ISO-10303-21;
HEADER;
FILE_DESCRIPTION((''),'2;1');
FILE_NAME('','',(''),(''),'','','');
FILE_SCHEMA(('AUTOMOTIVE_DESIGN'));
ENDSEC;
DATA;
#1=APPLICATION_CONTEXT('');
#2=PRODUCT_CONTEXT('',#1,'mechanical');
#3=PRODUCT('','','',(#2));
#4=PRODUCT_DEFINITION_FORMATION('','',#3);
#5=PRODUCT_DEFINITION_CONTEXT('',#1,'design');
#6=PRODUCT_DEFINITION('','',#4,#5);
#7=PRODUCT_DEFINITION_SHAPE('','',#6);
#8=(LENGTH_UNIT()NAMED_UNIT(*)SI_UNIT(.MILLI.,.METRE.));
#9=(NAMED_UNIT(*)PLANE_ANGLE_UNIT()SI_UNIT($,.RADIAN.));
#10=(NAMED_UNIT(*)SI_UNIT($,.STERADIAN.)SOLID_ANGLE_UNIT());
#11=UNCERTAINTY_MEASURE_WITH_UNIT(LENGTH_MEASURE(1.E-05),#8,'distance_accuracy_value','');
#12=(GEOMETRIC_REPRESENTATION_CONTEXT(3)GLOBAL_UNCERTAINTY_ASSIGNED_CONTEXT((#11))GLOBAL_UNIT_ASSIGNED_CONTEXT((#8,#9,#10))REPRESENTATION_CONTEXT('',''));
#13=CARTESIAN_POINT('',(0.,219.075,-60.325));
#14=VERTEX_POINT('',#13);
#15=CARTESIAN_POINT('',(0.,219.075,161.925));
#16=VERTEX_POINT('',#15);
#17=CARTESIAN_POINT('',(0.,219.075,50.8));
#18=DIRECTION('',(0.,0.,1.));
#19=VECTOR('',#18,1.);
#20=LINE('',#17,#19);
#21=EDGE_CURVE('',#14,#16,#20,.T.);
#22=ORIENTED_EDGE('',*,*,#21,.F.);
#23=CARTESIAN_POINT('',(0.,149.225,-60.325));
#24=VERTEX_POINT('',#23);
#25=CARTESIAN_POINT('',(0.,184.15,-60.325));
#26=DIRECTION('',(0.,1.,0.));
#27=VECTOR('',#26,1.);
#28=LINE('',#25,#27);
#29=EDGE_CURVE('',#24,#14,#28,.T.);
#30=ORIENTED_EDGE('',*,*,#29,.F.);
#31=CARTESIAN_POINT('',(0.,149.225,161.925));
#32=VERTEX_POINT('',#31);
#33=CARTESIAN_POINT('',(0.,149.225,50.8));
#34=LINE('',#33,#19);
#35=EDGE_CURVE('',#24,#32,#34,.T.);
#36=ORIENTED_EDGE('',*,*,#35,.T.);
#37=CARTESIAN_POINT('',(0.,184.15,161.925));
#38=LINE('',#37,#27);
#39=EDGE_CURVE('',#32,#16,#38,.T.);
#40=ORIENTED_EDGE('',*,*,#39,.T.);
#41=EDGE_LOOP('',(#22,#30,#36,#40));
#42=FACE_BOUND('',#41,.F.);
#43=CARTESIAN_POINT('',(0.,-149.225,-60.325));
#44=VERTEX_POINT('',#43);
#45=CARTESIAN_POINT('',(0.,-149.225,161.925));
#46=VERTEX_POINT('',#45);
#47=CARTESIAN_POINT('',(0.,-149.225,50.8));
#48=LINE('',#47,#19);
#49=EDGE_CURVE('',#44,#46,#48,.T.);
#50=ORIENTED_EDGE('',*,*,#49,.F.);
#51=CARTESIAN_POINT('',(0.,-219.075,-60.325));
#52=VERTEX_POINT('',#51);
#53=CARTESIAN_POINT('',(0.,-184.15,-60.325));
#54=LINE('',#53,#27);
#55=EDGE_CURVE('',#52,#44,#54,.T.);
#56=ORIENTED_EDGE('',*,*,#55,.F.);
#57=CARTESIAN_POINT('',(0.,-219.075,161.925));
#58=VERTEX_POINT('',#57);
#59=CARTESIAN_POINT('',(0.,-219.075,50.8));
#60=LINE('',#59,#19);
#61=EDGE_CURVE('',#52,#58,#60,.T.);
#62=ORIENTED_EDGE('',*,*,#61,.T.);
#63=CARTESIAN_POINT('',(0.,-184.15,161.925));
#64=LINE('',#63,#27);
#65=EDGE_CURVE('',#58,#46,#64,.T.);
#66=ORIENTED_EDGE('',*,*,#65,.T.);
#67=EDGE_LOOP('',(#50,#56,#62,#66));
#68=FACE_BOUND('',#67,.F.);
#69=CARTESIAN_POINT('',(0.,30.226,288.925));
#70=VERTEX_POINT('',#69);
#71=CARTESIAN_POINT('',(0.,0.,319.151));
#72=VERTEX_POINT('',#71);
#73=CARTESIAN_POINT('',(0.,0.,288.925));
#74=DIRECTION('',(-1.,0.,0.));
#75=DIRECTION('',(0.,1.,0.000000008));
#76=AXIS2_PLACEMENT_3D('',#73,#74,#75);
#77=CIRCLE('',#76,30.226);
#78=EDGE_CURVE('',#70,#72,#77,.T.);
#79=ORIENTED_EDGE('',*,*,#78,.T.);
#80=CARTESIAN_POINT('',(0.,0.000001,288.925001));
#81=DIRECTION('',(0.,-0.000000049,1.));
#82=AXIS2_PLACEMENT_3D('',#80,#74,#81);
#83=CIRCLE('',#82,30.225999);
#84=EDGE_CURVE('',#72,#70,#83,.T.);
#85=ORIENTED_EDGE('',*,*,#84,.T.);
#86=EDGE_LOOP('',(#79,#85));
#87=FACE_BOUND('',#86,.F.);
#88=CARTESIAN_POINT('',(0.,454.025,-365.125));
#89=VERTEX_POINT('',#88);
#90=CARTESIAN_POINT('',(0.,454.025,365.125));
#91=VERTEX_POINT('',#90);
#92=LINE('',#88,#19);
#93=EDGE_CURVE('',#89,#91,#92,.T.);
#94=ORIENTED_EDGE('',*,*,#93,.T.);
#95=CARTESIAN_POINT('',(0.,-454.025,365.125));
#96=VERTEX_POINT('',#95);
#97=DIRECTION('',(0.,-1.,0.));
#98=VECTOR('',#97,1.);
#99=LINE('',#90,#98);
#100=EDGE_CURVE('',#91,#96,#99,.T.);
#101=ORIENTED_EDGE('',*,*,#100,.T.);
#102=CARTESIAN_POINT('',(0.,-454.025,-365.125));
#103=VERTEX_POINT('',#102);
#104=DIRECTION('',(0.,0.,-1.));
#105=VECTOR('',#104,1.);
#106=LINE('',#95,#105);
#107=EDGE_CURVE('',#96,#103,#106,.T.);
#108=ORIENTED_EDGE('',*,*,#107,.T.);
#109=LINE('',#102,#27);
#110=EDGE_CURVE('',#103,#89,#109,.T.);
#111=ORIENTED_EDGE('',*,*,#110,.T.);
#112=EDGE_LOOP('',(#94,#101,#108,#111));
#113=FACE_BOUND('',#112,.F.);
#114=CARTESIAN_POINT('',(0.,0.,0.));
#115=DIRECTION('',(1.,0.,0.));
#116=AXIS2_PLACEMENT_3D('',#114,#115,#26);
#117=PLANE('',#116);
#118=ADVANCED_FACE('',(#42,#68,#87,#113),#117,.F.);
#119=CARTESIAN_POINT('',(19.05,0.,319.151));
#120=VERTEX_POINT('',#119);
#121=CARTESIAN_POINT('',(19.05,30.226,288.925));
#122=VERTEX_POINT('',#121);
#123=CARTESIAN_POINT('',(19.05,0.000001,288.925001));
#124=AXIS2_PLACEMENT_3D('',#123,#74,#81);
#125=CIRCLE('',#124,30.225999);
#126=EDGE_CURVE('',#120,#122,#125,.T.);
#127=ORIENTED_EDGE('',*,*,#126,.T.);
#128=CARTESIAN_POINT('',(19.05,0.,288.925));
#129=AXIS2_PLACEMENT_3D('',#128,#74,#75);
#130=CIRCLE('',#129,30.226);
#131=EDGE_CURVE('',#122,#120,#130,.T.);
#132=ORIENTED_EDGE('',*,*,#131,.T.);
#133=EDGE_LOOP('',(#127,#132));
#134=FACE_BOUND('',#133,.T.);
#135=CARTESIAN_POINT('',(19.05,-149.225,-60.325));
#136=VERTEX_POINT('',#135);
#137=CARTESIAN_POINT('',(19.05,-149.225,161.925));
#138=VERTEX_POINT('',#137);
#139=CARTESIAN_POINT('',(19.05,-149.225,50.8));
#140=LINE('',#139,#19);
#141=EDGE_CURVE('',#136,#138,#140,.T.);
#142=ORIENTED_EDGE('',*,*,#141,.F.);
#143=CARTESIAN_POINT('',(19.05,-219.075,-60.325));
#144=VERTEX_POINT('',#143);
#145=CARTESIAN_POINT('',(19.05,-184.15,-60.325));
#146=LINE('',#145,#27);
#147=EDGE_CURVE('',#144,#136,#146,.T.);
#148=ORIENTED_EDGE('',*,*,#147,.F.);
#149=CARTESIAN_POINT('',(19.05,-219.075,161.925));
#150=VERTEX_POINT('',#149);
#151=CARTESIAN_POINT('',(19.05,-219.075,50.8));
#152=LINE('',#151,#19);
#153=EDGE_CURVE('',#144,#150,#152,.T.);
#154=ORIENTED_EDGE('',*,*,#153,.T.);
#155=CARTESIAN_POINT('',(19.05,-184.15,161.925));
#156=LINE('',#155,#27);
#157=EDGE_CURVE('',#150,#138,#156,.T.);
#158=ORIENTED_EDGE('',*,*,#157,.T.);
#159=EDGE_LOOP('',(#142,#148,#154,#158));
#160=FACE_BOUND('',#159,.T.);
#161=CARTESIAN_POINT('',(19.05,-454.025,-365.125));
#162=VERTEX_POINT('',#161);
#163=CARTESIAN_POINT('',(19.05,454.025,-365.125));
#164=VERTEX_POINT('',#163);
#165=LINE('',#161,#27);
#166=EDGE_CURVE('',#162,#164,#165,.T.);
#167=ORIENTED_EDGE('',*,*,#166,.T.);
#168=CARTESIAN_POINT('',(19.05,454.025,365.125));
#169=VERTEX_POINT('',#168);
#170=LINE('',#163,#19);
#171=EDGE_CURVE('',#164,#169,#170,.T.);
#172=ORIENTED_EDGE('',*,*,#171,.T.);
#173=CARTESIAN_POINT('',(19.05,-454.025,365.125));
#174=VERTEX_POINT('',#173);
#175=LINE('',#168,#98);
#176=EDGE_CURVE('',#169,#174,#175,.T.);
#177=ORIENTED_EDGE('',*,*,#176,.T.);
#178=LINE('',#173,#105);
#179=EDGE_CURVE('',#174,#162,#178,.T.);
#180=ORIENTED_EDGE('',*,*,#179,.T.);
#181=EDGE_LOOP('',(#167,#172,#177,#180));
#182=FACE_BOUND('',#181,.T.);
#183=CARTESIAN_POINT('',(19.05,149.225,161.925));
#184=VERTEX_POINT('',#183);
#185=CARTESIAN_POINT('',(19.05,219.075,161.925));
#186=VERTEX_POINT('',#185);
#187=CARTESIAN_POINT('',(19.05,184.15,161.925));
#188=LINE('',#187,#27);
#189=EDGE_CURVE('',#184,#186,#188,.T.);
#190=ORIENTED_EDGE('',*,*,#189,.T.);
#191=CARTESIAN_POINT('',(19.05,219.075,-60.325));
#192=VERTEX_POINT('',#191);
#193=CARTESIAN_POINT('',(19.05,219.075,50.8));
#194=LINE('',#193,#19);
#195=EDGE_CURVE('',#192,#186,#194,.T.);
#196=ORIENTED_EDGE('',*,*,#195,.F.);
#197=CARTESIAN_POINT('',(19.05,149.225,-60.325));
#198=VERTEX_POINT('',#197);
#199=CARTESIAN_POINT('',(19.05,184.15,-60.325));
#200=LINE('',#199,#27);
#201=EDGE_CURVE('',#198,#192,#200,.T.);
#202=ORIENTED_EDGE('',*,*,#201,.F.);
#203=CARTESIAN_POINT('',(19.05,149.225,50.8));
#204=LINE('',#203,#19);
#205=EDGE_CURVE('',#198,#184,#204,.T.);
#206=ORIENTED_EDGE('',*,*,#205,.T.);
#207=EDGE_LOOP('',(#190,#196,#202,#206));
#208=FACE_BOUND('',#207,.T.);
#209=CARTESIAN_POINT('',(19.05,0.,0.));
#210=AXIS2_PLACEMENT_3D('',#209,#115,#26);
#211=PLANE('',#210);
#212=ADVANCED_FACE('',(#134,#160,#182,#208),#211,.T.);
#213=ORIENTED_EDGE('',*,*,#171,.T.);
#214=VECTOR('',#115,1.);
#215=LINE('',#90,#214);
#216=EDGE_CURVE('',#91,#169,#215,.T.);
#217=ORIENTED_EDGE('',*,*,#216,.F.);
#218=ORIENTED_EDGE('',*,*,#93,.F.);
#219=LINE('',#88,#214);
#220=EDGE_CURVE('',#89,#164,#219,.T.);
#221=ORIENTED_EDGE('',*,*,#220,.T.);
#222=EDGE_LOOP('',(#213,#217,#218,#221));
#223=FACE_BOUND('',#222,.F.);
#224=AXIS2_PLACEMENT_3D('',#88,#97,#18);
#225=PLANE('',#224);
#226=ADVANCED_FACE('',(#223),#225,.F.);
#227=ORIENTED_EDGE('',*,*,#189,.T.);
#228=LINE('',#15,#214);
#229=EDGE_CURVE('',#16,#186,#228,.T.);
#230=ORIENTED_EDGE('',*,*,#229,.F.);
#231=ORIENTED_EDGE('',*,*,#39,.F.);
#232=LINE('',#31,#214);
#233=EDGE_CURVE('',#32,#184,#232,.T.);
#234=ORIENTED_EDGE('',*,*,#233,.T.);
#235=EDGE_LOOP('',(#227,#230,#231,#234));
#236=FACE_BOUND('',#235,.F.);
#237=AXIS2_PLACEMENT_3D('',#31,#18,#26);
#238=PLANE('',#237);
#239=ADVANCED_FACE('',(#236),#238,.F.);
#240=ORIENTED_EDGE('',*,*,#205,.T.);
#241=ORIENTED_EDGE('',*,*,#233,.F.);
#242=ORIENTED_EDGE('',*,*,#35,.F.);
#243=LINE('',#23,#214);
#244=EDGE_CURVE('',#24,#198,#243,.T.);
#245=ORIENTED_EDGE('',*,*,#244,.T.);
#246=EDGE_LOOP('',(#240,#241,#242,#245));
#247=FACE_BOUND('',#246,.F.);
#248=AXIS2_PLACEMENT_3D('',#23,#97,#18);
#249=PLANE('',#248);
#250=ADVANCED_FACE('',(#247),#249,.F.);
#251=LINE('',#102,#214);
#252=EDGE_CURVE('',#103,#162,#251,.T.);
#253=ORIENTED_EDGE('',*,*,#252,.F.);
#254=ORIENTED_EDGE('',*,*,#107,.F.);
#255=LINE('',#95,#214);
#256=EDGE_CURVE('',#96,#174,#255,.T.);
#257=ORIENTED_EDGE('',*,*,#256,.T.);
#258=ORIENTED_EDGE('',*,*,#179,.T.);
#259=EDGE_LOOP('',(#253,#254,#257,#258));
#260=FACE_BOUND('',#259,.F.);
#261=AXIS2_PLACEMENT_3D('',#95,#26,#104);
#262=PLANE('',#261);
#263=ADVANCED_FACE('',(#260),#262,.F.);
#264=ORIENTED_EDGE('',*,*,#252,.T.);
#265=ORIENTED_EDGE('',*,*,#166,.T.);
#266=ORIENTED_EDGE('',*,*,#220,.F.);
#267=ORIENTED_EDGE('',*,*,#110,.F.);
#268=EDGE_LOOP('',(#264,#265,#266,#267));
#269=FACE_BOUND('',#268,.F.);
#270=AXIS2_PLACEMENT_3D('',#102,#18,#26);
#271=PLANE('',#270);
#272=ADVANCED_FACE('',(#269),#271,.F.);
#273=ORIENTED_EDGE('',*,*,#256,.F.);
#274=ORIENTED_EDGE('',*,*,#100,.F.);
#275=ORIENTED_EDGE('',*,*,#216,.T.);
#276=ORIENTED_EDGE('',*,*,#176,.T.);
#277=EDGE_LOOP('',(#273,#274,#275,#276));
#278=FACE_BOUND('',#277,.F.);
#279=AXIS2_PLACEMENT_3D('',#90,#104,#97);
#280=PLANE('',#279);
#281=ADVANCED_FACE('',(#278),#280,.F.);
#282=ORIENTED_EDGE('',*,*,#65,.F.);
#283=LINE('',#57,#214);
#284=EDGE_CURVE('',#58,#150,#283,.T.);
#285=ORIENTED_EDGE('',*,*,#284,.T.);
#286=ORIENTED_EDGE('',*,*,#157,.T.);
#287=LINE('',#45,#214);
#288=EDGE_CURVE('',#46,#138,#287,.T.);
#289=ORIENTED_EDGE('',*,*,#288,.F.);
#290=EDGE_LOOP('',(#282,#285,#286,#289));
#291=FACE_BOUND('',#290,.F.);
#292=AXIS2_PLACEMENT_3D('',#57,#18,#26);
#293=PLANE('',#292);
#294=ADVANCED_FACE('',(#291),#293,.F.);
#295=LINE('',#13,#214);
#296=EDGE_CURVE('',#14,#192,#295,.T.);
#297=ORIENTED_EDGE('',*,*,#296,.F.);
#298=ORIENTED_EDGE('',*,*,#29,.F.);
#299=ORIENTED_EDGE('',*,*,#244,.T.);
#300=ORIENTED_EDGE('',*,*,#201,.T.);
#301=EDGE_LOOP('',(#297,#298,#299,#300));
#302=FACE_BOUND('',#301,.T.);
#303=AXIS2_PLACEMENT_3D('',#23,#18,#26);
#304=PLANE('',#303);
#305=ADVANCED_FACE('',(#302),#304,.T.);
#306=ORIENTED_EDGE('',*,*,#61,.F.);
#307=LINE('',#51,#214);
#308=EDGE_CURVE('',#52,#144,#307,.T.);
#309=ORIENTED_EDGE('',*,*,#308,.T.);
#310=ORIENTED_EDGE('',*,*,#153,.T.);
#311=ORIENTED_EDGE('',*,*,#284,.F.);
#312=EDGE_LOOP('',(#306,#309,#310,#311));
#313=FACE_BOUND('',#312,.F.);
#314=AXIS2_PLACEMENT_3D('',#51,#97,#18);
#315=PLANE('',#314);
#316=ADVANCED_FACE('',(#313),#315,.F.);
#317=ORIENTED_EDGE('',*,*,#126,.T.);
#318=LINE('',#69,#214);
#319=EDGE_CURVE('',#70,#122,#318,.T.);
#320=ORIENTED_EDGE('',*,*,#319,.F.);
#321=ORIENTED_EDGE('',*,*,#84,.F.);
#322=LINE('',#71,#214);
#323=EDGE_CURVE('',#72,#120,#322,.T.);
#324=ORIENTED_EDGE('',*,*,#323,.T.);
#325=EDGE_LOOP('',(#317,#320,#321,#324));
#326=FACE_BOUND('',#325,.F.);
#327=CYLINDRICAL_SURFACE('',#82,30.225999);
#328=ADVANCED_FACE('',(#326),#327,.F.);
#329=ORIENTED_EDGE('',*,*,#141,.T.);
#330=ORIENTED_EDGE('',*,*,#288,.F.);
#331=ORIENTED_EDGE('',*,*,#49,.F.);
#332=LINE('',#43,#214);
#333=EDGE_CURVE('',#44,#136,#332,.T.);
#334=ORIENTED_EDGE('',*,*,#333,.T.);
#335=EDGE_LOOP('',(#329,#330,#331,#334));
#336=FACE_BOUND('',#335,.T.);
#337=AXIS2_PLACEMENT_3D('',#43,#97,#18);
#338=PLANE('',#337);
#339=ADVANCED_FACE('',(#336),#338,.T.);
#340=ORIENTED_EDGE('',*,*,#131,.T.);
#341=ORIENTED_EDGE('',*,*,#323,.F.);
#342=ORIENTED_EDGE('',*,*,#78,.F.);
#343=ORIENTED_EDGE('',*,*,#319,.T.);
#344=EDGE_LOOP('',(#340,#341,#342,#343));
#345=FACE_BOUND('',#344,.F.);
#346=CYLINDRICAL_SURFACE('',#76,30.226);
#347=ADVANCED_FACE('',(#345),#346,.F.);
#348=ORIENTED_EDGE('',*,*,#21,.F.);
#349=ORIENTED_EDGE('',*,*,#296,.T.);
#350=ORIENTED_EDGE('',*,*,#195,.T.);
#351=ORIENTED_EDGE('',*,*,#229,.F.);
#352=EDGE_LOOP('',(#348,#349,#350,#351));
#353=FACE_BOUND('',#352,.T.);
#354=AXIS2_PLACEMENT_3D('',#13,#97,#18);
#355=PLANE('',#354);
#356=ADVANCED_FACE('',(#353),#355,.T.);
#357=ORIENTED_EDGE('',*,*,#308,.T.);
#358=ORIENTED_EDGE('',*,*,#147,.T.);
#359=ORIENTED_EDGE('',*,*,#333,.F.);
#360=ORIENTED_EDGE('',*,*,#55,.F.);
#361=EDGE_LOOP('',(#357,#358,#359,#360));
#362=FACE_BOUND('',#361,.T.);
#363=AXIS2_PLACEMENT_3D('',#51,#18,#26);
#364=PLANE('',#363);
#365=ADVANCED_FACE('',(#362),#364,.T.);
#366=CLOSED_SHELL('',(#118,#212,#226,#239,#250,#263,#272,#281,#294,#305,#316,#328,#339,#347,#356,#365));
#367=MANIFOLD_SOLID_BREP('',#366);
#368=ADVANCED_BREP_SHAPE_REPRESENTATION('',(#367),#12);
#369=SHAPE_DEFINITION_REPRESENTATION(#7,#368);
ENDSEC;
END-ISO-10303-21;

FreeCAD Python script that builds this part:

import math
import FreeCAD as App
import Part
import Sketcher
Q = App.Units.Quantity

doc = App.newDocument("Part")
params = doc.addObject("Spreadsheet::Sheet", "Params")
for row, (alias, value) in enumerate([
    ("sketch1_radius", "1.1899999 in"),
    ("sketch1_width", "35.75 in"),
    ("sketch1_width2", "2.75 in"),
    ("sketch1_height", "28.75 in"),
    ("pad1_length", "0.75 in"),
], start=1):
    params.set(f"A{row}", alias)
    params.set(f"B{row}", "=" + value)
    params.setAlias(f"B{row}", alias)

body = doc.addObject("PartDesign::Body", "Body")

sketch1 = body.newObject("Sketcher::SketchObject", "Sketch")
sketch1.AttachmentSupport = (doc.getObject("YZ_Plane"), [""])
sketch1.MapMode = "FlatFace"
sketch1.addGeometry(Part.LineSegment(App.Vector(-454.025, 365.125, 0), App.Vector(-454.025, -365.125, 0)), False)
sketch1.addGeometry(Part.LineSegment(App.Vector(-454.025, -365.125, 0), App.Vector(454.025, -365.125, 0)), False)
sketch1.addGeometry(Part.LineSegment(App.Vector(454.025, -365.125, 0), App.Vector(454.025, 365.125, 0)), False)
sketch1.addGeometry(Part.LineSegment(App.Vector(454.025, 365.125, 0), App.Vector(-454.025, 365.125, 0)), False)
sketch1.addGeometry(Part.LineSegment(App.Vector(-149.225, -60.325, 0), App.Vector(-219.075, -60.325, 0)), False)
sketch1.addGeometry(Part.LineSegment(App.Vector(-219.075, -60.325, 0), App.Vector(-219.075, 161.925, 0)), False)
sketch1.addGeometry(Part.LineSegment(App.Vector(-219.075, 161.925, 0), App.Vector(-149.225, 161.925, 0)), False)
sketch1.addGeometry(Part.LineSegment(App.Vector(-149.225, 161.925, 0), App.Vector(-149.225, -60.325, 0)), False)
sketch1.addGeometry(Part.LineSegment(App.Vector(219.075, -60.325, 0), App.Vector(149.225, -60.325, 0)), False)
sketch1.addGeometry(Part.LineSegment(App.Vector(149.225, -60.325, 0), App.Vector(149.225, 161.925, 0)), False)
sketch1.addGeometry(Part.LineSegment(App.Vector(149.225, 161.925, 0), App.Vector(219.075, 161.925, 0)), False)
sketch1.addGeometry(Part.LineSegment(App.Vector(219.075, 161.925, 0), App.Vector(219.075, -60.325, 0)), False)
sketch1.addGeometry(Part.ArcOfCircle(Part.Circle(App.Vector(0.000001, 288.925001, 0), App.Vector(0, 0, 1), 30.225999), math.radians(-0.000003), math.radians(90.000003)), False)
sketch1.addGeometry(Part.ArcOfCircle(Part.Circle(App.Vector(0, 288.925, 0), App.Vector(0, 0, 1), 30.226), math.radians(90), math.radians(360)), False)
sketch1.addConstraint(Sketcher.Constraint("Coincident", 0, 2, 1, 1))
sketch1.addConstraint(Sketcher.Constraint("Coincident", 1, 2, 2, 1))
sketch1.addConstraint(Sketcher.Constraint("Coincident", 2, 2, 3, 1))
sketch1.addConstraint(Sketcher.Constraint("Coincident", 3, 2, 0, 1))
sketch1.addConstraint(Sketcher.Constraint("Coincident", 4, 2, 5, 1))
sketch1.addConstraint(Sketcher.Constraint("Coincident", 5, 2, 6, 1))
sketch1.addConstraint(Sketcher.Constraint("Coincident", 6, 2, 7, 1))
sketch1.addConstraint(Sketcher.Constraint("Coincident", 7, 2, 4, 1))
sketch1.addConstraint(Sketcher.Constraint("Coincident", 8, 2, 9, 1))
sketch1.addConstraint(Sketcher.Constraint("Coincident", 9, 2, 10, 1))
sketch1.addConstraint(Sketcher.Constraint("Coincident", 10, 2, 11, 1))
sketch1.addConstraint(Sketcher.Constraint("Coincident", 11, 2, 8, 1))
sketch1.addConstraint(Sketcher.Constraint("Tangent", 12, 1, 13, 2))
sketch1.addConstraint(Sketcher.Constraint("Coincident", 13, 1, 12, 2))
sketch1.addConstraint(Sketcher.Constraint("Vertical", 0))
sketch1.addConstraint(Sketcher.Constraint("Horizontal", 1))
sketch1.addConstraint(Sketcher.Constraint("Vertical", 2))
sketch1.addConstraint(Sketcher.Constraint("Horizontal", 3))
sketch1.addConstraint(Sketcher.Constraint("Horizontal", 4))
sketch1.addConstraint(Sketcher.Constraint("Vertical", 5))
sketch1.addConstraint(Sketcher.Constraint("Horizontal", 6))
sketch1.addConstraint(Sketcher.Constraint("Vertical", 7))
sketch1.addConstraint(Sketcher.Constraint("Horizontal", 8))
sketch1.addConstraint(Sketcher.Constraint("Vertical", 9))
sketch1.addConstraint(Sketcher.Constraint("Horizontal", 10))
sketch1.addConstraint(Sketcher.Constraint("Vertical", 11))
sketch1.addConstraint(Sketcher.Constraint("Symmetric", 0, 2, 2, 2, -1, 1))
sketch1.addConstraint(Sketcher.Constraint("Symmetric", 7, 2, 8, 2, -2))
sketch1.addConstraint(Sketcher.Constraint("Symmetric", 5, 2, 10, 2, -2))
sketch1.addConstraint(Sketcher.Constraint("PointOnObject", 12, 3, -2))
sketch1.addConstraint(Sketcher.Constraint("PointOnObject", 13, 1, -2))
sketch1.addConstraint(Sketcher.Constraint("Horizontal", 13, 3, 12, 1))
sketch1.addConstraint(Sketcher.Constraint("Radius", 12, Q("1.1899999 in")))
sketch1.addConstraint(Sketcher.Constraint("DistanceY", 12, 3, 2, 2, Q("2.9999999 in")))
sketch1.addConstraint(Sketcher.Constraint("DistanceY", 0, 2, 4, 2, Q("12 in")))
sketch1.addConstraint(Sketcher.Constraint("DistanceY", 5, 2, 13, 3, Q("5 in")))
sketch1.addConstraint(Sketcher.Constraint("DistanceX", 3, 2, 6, 2, Q("12 in")))
sketch1.addConstraint(Sketcher.Constraint("DistanceX", 1, 1, 1, 2, Q("35.75 in")))
sketch1.addConstraint(Sketcher.Constraint("DistanceX", 4, 2, 4, 1, Q("2.75 in")))
sketch1.addConstraint(Sketcher.Constraint("DistanceY", 0, 2, 0, 1, Q("28.75 in")))
sketch1.setExpression("Constraints[32]", "Params.sketch1_radius")
sketch1.setExpression("Constraints[37]", "Params.sketch1_width")
sketch1.setExpression("Constraints[38]", "Params.sketch1_width2")
sketch1.setExpression("Constraints[39]", "Params.sketch1_height")
pad1 = body.newObject("PartDesign::Pad", "Pad")
pad1.Profile = sketch1
pad1.setExpression("Length", "Params.pad1_length")

doc.recompute()
